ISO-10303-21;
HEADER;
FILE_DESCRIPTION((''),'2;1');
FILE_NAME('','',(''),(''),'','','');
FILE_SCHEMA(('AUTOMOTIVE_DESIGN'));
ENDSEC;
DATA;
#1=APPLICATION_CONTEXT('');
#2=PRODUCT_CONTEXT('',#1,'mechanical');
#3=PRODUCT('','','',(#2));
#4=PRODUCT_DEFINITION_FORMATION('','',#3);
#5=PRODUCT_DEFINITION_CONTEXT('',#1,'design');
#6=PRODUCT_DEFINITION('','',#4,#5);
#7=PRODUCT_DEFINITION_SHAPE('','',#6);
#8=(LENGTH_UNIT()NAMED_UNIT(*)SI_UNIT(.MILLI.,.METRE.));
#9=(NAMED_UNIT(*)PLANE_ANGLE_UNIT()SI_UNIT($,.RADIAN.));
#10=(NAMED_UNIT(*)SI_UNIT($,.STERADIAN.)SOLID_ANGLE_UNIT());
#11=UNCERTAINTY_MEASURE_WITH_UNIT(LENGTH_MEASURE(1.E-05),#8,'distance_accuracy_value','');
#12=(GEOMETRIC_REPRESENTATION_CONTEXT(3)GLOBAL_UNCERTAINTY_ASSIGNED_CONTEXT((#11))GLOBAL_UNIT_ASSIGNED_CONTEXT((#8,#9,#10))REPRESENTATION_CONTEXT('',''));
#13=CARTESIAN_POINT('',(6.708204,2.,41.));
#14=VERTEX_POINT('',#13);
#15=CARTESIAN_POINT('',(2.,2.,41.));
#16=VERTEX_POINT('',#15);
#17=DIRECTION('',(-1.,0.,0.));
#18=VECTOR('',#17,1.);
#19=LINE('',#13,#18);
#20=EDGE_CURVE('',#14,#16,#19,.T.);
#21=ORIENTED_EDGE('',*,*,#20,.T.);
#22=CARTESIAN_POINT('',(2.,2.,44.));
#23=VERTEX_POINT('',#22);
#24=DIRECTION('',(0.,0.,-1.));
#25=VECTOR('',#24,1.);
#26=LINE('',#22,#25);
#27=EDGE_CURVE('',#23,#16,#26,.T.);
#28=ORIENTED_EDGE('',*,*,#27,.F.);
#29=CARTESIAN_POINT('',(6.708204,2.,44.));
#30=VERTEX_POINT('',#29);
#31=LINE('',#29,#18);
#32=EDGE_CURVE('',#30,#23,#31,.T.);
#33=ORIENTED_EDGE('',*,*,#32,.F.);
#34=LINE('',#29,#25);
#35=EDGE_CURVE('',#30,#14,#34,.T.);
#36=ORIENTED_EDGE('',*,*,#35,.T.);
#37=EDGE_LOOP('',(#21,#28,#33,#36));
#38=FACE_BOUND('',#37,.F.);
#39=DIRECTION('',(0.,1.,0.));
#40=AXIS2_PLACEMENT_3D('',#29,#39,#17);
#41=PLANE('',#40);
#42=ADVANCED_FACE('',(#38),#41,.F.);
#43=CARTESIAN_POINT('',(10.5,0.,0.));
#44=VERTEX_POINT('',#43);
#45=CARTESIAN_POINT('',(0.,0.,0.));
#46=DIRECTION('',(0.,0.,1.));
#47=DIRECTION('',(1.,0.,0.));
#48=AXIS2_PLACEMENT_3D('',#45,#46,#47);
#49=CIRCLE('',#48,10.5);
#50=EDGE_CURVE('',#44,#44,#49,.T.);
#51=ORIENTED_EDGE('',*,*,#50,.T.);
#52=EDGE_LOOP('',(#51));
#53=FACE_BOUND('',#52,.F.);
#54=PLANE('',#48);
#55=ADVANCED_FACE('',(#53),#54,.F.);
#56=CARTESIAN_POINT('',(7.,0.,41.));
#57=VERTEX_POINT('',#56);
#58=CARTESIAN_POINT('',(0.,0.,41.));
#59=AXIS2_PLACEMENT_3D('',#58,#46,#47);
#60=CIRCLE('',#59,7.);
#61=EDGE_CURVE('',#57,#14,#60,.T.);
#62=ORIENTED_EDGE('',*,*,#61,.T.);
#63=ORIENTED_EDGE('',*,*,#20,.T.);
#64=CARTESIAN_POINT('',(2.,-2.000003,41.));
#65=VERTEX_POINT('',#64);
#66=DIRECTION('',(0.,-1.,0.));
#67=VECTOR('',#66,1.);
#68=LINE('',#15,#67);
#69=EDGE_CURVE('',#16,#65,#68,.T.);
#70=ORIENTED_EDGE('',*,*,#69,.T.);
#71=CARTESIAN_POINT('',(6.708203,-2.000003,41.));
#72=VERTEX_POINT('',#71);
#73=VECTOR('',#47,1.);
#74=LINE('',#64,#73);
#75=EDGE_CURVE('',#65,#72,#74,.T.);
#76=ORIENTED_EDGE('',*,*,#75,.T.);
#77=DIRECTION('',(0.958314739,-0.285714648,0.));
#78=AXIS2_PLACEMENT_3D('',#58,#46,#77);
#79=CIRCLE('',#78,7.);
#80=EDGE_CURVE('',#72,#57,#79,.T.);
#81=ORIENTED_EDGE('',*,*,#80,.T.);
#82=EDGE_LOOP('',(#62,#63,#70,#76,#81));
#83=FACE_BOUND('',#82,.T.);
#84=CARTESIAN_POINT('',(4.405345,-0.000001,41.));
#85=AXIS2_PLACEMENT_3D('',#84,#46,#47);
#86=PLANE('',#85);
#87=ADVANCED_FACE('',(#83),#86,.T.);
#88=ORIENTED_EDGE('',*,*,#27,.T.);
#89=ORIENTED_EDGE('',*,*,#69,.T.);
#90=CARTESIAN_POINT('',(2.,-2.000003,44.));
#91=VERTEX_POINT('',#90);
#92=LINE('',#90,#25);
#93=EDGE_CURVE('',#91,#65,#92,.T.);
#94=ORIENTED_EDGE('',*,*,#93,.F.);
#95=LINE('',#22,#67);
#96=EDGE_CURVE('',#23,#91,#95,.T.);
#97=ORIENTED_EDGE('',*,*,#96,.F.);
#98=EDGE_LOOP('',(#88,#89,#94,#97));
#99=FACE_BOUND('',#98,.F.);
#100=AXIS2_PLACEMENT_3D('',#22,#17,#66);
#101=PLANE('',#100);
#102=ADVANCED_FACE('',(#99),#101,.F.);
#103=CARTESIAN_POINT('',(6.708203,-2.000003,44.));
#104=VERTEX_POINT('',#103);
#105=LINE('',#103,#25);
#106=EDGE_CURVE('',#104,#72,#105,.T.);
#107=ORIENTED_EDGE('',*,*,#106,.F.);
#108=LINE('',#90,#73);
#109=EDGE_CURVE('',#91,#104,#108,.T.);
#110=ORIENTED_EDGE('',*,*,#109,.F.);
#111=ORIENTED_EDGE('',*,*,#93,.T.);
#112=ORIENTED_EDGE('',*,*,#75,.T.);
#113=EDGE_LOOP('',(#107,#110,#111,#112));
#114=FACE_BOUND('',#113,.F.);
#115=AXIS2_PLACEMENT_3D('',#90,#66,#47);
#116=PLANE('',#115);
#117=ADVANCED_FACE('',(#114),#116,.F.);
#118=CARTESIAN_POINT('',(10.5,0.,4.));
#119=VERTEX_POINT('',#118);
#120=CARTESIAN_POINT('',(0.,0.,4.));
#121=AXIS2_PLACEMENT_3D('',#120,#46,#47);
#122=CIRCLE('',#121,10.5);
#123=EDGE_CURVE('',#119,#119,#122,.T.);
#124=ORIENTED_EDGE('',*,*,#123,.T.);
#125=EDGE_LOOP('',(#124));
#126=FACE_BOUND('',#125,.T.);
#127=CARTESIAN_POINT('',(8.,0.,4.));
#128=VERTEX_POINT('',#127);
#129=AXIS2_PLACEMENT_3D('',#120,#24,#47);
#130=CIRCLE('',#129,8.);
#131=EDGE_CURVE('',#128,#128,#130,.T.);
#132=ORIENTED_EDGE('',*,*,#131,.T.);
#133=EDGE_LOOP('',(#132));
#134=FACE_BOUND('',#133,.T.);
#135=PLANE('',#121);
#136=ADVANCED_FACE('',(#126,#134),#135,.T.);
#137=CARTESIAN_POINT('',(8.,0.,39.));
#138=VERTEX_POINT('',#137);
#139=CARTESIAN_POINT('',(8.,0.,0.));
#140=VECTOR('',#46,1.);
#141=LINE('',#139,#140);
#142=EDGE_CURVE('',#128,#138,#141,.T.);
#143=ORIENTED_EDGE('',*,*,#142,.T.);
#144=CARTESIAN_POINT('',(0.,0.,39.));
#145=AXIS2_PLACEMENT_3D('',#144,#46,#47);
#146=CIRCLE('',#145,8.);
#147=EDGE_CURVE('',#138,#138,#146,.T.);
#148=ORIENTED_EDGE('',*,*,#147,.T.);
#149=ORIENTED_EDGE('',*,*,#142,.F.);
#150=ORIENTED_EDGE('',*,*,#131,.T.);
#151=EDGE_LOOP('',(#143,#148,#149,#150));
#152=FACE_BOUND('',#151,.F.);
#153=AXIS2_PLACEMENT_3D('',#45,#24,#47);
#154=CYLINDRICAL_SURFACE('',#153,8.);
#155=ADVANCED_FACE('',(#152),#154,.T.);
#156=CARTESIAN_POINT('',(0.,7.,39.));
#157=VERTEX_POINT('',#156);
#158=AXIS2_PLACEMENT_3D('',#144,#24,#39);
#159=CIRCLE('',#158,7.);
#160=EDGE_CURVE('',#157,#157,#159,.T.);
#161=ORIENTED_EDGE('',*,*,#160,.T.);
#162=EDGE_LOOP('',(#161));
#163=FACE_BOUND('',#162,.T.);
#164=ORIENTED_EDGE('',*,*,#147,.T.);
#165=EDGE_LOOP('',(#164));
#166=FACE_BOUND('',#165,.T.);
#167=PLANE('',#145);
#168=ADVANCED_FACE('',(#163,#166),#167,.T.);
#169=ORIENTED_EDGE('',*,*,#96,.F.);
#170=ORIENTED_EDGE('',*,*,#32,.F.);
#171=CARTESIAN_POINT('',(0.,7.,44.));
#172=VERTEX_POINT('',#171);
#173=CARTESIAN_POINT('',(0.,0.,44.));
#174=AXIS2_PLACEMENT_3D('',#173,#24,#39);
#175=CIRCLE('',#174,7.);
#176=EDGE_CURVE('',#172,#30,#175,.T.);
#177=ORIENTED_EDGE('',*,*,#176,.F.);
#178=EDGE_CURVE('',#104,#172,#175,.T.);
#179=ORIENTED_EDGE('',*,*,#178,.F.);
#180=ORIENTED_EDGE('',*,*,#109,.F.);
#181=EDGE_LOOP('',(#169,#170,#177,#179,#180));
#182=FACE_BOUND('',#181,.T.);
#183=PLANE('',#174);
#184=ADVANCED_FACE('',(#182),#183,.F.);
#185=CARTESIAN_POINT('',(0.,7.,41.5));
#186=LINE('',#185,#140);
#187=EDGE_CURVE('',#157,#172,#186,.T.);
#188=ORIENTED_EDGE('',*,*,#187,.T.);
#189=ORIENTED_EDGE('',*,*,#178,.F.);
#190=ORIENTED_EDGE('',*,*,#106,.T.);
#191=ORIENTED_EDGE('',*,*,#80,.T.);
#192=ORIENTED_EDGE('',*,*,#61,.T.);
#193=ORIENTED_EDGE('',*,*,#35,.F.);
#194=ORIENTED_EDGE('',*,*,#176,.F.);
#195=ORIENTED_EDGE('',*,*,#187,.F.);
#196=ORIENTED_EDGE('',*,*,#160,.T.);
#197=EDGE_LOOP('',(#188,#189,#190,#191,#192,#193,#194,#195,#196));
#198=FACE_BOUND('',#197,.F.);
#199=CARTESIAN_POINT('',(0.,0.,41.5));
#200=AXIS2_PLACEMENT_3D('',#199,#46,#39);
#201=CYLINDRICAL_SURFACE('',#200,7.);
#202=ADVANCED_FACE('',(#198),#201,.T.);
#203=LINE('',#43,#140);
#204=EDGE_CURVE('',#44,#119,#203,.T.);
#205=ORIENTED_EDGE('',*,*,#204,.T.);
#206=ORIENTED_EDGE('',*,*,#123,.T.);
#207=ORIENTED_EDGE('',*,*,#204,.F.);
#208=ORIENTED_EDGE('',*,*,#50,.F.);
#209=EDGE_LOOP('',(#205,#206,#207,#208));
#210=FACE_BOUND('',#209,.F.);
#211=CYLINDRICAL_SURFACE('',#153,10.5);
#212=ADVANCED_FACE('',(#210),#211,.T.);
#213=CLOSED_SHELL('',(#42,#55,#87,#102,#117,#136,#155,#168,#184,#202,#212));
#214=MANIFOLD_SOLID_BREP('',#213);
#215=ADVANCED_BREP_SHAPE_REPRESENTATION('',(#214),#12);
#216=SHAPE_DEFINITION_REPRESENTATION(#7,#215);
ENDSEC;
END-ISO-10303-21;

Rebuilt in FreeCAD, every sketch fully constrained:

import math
import FreeCAD as App
import Part
import Sketcher
Q = App.Units.Quantity


def add_polygon(sketch, points):
    """Adds a closed chain of lines whose ends are joined by coincident constraints."""
    first, n = sketch.GeometryCount, len(points)
    for a, b in zip(points, points[1:] + points[:1]):
        sketch.addGeometry(Part.LineSegment(App.Vector(*a, 0), App.Vector(*b, 0)), False)
    for i in range(n):
        sketch.addConstraint(Sketcher.Constraint("Coincident", first + i, 2, first + (i + 1) % n, 1))

doc = App.newDocument("Part")
body = doc.addObject("PartDesign::Body", "Body")

# Sketch on XY plane
sketch1 = body.newObject("Sketcher::SketchObject", "Sketch")
sketch1.AttachmentSupport = (doc.getObject("XY_Plane"), [""])
sketch1.MapMode = "FlatFace"
sketch1.addGeometry(Part.Circle(App.Vector(0, 0, 0), App.Vector(0, 0, 1), 10.5), False)
sketch1.addConstraint([
    Sketcher.Constraint("Coincident", 0, 3, -1, 1),
    Sketcher.Constraint("Diameter", 0, Q("21 mm")),
])
pad1 = body.newObject("PartDesign::Pad", "Pad")
pad1.Profile = sketch1
pad1.Length = 4

# Sketch on XY plane
sketch2 = body.newObject("Sketcher::SketchObject", "Sketch001")
sketch2.AttachmentSupport = (doc.getObject("XY_Plane"), [""])
sketch2.MapMode = "FlatFace"
sketch2.addGeometry(Part.Circle(App.Vector(0, 0, 0), App.Vector(0, 0, 1), 8), False)
sketch2.addConstraint([
    Sketcher.Constraint("Coincident", 0, 3, -1, 1),
    Sketcher.Constraint("Diameter", 0, Q("16 mm")),
])
pad2 = body.newObject("PartDesign::Pad", "Pad001")
pad2.Profile = sketch2
pad2.Length = 39

# Sketch on YZ plane
sketch3 = body.newObject("Sketcher::SketchObject", "Sketch002")
sketch3.AttachmentSupport = (doc.getObject("YZ_Plane"), [""])
sketch3.MapMode = "FlatFace"
add_polygon(sketch3, [(0, 44), (0, 39), (7, 39), (7, 44)])  # lines 0-3
sketch3.addConstraint([
    Sketcher.Constraint("Vertical", 0),
    Sketcher.Constraint("Horizontal", 1),
    Sketcher.Constraint("Vertical", 2),
    Sketcher.Constraint("Horizontal", 3),
    Sketcher.Constraint("PointOnObject", 0, 2, -2),
    Sketcher.Constraint("DistanceX", 1, 1, 1, 2, Q("7 mm")),
    Sketcher.Constraint("DistanceY", 0, 2, 0, 1, Q("5 mm")),
    Sketcher.Constraint("DistanceY", -1, 1, 0, 2, Q("39 mm")),
])
revolution = body.newObject("PartDesign::Revolution", "Revolution")
revolution.Profile = sketch3
revolution.ReferenceAxis = (sketch3, ["V_Axis"])
revolution.Angle = 360

# Sketch on XY plane
sketch4 = body.newObject("Sketcher::SketchObject", "Sketch003")
sketch4.AttachmentSupport = (doc.getObject("XY_Plane"), [""])
sketch4.MapMode = "FlatFace"
sketch4.AttachmentOffset = App.Placement(App.Vector(0, 0, 44), App.Rotation())
sketch4.addGeometry([
    Part.LineSegment(App.Vector(6.708204, 2, 0), App.Vector(2, 2, 0)),  # 0
    Part.LineSegment(App.Vector(2, 2, 0), App.Vector(2, -2.000003, 0)),  # 1
    Part.LineSegment(App.Vector(2, -2.000003, 0), App.Vector(6.708203, -2.000003, 0)),  # 2
    Part.ArcOfCircle(Part.Circle(App.Vector(0, 0, 0), App.Vector(0, 0, 1), 7), math.radians(-16.601571), math.radians(0)),  # 3
    Part.ArcOfCircle(Part.Circle(App.Vector(0, 0, 0), App.Vector(0, 0, 1), 7), math.radians(0), math.radians(16.60155)),  # 4
], False)
sketch4.addConstraint([
    Sketcher.Constraint("Coincident", 0, 2, 1, 1),
    Sketcher.Constraint("Coincident", 1, 2, 2, 1),
    Sketcher.Constraint("Coincident", 2, 2, 3, 1),
    Sketcher.Constraint("Tangent", 3, 2, 4, 1),
    Sketcher.Constraint("Coincident", 4, 2, 0, 1),
    Sketcher.Constraint("Horizontal", 0),
    Sketcher.Constraint("Vertical", 1),
    Sketcher.Constraint("Horizontal", 2),
    Sketcher.Constraint("Coincident", 3, 3, -1, 1),
    Sketcher.Constraint("Equal", 3, 4),
    Sketcher.Constraint("PointOnObject", 3, 2, -1),
    Sketcher.Constraint("Vertical", 2, 2, 4, 2),
    Sketcher.Constraint("Radius", 3, Q("7 mm")),
    Sketcher.Constraint("DistanceX", -1, 1, 0, 2, Q("2 mm")),
    Sketcher.Constraint("DistanceY", -1, 1, 0, 2, Q("2 mm")),
])
pocket1 = body.newObject("PartDesign::Pocket", "Pocket")
pocket1.Profile = sketch4
pocket1.Length = 3

doc.recompute()
